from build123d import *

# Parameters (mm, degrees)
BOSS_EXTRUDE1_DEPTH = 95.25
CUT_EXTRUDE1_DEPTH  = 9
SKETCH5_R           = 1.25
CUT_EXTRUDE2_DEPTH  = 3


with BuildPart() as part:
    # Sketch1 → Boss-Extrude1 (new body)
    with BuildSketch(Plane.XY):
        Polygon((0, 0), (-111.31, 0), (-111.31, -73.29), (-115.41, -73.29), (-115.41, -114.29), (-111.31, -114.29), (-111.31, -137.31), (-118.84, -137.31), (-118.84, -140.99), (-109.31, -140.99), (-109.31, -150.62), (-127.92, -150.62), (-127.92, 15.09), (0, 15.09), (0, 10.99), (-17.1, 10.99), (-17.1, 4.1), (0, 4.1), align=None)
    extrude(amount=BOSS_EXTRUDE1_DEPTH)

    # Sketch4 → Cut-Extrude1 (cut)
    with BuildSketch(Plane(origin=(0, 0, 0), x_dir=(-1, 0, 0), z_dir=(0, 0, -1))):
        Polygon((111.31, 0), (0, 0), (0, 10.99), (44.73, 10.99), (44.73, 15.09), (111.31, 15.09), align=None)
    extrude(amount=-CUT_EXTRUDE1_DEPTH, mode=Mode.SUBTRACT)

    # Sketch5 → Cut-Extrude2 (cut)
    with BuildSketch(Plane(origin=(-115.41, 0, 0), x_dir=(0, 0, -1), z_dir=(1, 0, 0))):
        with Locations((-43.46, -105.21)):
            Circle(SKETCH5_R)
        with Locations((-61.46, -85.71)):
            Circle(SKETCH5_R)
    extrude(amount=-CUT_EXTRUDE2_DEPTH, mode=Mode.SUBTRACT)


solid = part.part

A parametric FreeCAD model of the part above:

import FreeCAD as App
import Part
import Sketcher
from FreeCAD import Vector


def add_polygon(sketch, points):
    """Adds a closed chain of lines whose ends are joined by coincident constraints."""
    first, n = sketch.GeometryCount, len(points)
    for a, b in zip(points, points[1:] + points[:1]):
        sketch.addGeometry(Part.LineSegment(App.Vector(*a, 0), App.Vector(*b, 0)), False)
    for i in range(n):
        sketch.addConstraint(Sketcher.Constraint("Coincident", first + i, 2, first + (i + 1) % n, 1))

doc = App.newDocument("Part")
body = doc.addObject("PartDesign::Body", "Body")

# Sketch on XY plane
sketch1 = body.newObject("Sketcher::SketchObject", "Sketch")
sketch1.AttachmentSupport = (doc.getObject("XY_Plane"), [""])
sketch1.MapMode = "FlatFace"
add_polygon(sketch1, [(-111.31, 0), (0, 0), (0, 4.1), (-17.1, 4.1), (-17.1, 10.99), (0, 10.99), (0, 15.09), (-127.92, 15.09), (-127.92, -150.62), (-109.31, -150.62), (-109.31, -140.99), (-118.84, -140.99), (-118.84, -137.31), (-111.31, -137.31), (-111.31, -114.29), (-115.41, -114.29), (-115.41, -73.29), (-111.31, -73.29)])  # lines 0-17
sketch1.addConstraint([
    Sketcher.Constraint("Horizontal", 0),
    Sketcher.Constraint("Vertical", 1),
    Sketcher.Constraint("Horizontal", 2),
    Sketcher.Constraint("Vertical", 3),
    Sketcher.Constraint("Horizontal", 4),
    Sketcher.Constraint("Vertical", 5),
    Sketcher.Constraint("Horizontal", 6),
    Sketcher.Constraint("Vertical", 7),
    Sketcher.Constraint("Horizontal", 8),
    Sketcher.Constraint("Vertical", 9),
    Sketcher.Constraint("Horizontal", 10),
    Sketcher.Constraint("Vertical", 11),
    Sketcher.Constraint("Horizontal", 12),
    Sketcher.Constraint("Vertical", 13),
    Sketcher.Constraint("Horizontal", 14),
    Sketcher.Constraint("Vertical", 15),
    Sketcher.Constraint("Horizontal", 16),
    Sketcher.Constraint("Vertical", 17),
    Sketcher.Constraint("Coincident", 0, 2, -1, 1),
    Sketcher.Constraint("PointOnObject", 4, 2, -2),
    Sketcher.Constraint("Vertical", 13, 2, 16, 2),
    Sketcher.Constraint("Equal", 16, 1),
    Sketcher.Constraint("Equal", 1, 5),
    Sketcher.Constraint("DistanceY", 15, 1, 15, 2, 41.0),
    Sketcher.Constraint("DistanceX", 2, 2, 2, 1, 17.1),
    Sketcher.Constraint("DistanceX", 14, 2, 14, 1, 4.1),
    Sketcher.Constraint("DistanceX", 12, 2, 9, 2, 2.0),
    Sketcher.Constraint("DistanceX", 0, 1, 0, 2, 111.31),
    Sketcher.Constraint("DistanceX", 6, 2, 6, 1, 127.92),
    Sketcher.Constraint("DistanceX", 10, 2, 10, 1, 9.53),
    Sketcher.Constraint("DistanceY", 3, 1, 3, 2, 6.89),
    Sketcher.Constraint("DistanceY", 7, 2, 7, 1, 165.71),
    Sketcher.Constraint("DistanceY", 9, 1, 9, 2, 9.63),
    Sketcher.Constraint("DistanceY", 11, 1, 11, 2, 3.68),
    Sketcher.Constraint("DistanceY", 13, 1, 13, 2, 23.02),
])
pad1 = body.newObject("PartDesign::Pad", "Pad")
pad1.Profile = sketch1
pad1.Length = 95.25

# Sketch on XY plane
sketch2 = body.newObject("Sketcher::SketchObject", "Sketch001")
sketch2.AttachmentSupport = (doc.getObject("XY_Plane"), [""])
sketch2.MapMode = "FlatFace"
add_polygon(sketch2, [(0, 0), (-111.31, 0), (-111.31, 15.09), (-44.73, 15.09), (-44.73, 10.99), (0, 10.99)])  # lines 0-5
sketch2.addConstraint([
    Sketcher.Constraint("Horizontal", 0),
    Sketcher.Constraint("Vertical", 1),
    Sketcher.Constraint("Horizontal", 2),
    Sketcher.Constraint("Vertical", 3),
    Sketcher.Constraint("Horizontal", 4),
    Sketcher.Constraint("Vertical", 5),
    Sketcher.Constraint("Coincident", 5, 2, -1, 1),
    Sketcher.Constraint("DistanceY", 3, 2, 3, 1, 4.1),
    Sketcher.Constraint("DistanceX", 0, 2, 0, 1, 111.31),
    Sketcher.Constraint("DistanceX", 2, 1, 2, 2, 66.58),
    Sketcher.Constraint("DistanceY", 1, 1, 1, 2, 15.09),
])
pocket1 = body.newObject("PartDesign::Pocket", "Pocket")
pocket1.Profile = sketch2
pocket1.Length = 9
pocket1.Reversed = True

# Sketch on YZ plane
sketch3 = body.newObject("Sketcher::SketchObject", "Sketch002")
sketch3.AttachmentSupport = (doc.getObject("YZ_Plane"), [""])
sketch3.MapMode = "FlatFace"
sketch3.AttachmentOffset = App.Placement(Vector(0, 0, -115.41), App.Rotation())
sketch3.addGeometry([
    Part.Circle(Vector(-105.21, 43.46, 0), Vector(0, 0, 1), 1.25),
    Part.Circle(Vector(-85.71, 61.46, 0), Vector(0, 0, 1), 1.25),
], False)
sketch3.addConstraint([
    Sketcher.Constraint("Equal", 0, 1),
    Sketcher.Constraint("Diameter", 0, 2.5),
    Sketcher.Constraint("DistanceY", 0, 3, 1, 3, 18.0),
    Sketcher.Constraint("DistanceX", 0, 3, 1, 3, 19.5),
    Sketcher.Constraint("DistanceX", 0, 3, -1, 1, 105.21),
    Sketcher.Constraint("DistanceY", -1, 1, 0, 3, 43.46),
])
pocket2 = body.newObject("PartDesign::Pocket", "Pocket001")
pocket2.Profile = sketch3
pocket2.Length = 3

doc.recompute()
